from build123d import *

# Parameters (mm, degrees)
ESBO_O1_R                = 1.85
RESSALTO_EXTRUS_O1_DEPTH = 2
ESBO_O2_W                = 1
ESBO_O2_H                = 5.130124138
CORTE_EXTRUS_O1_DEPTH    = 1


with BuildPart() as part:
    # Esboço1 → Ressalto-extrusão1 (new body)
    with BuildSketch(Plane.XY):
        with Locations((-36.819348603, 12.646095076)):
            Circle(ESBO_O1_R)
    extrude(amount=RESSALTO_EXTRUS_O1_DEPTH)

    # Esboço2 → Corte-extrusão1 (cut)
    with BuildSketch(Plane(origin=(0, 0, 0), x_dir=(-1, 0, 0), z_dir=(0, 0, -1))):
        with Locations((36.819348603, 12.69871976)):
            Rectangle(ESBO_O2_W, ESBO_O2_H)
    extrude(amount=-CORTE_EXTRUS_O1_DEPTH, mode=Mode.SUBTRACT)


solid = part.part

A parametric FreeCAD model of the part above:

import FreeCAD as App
import Part
import Sketcher


def add_polygon(sketch, points):
    """Adds a closed chain of lines whose ends are joined by coincident constraints."""
    first, n = sketch.GeometryCount, len(points)
    for a, b in zip(points, points[1:] + points[:1]):
        sketch.addGeometry(Part.LineSegment(App.Vector(*a, 0), App.Vector(*b, 0)), False)
    for i in range(n):
        sketch.addConstraint(Sketcher.Constraint("Coincident", first + i, 2, first + (i + 1) % n, 1))

doc = App.newDocument("Part")
body = doc.addObject("PartDesign::Body", "Body")

# Sketch on XY plane
sketch1 = body.newObject("Sketcher::SketchObject", "Sketch")
sketch1.AttachmentSupport = (doc.getObject("XY_Plane"), [""])
sketch1.MapMode = "FlatFace"
sketch1.addGeometry(Part.Circle(App.Vector(-36.8, 12.6, 0), App.Vector(0, 0, 1), 1.9), False)
sketch1.addConstraint([
    Sketcher.Constraint("Diameter", 0, 3.7),
    Sketcher.Constraint("DistanceX", 0, 3, -1, 1, 36.819349),
    Sketcher.Constraint("DistanceY", -1, 1, 0, 3, 12.646095),
])
pad1 = body.newObject("PartDesign::Pad", "Pad")
pad1.Profile = sketch1
pad1.Length = 2

# Sketch on XY plane
sketch2 = body.newObject("Sketcher::SketchObject", "Sketch001")
sketch2.AttachmentSupport = (doc.getObject("XY_Plane"), [""])
sketch2.MapMode = "FlatFace"
add_polygon(sketch2, [(-36.3, 15.3), (-36.3, 10.1), (-37.3, 10.1), (-37.3, 15.3)])  # lines 0-3
sketch2.addConstraint([
    Sketcher.Constraint("Vertical", 0),
    Sketcher.Constraint("Horizontal", 1),
    Sketcher.Constraint("Vertical", 2),
    Sketcher.Constraint("Horizontal", 3),
    Sketcher.Constraint("DistanceX", 1, 2, 1, 1, 1.0),
    Sketcher.Constraint("DistanceY", 0, 2, 0, 1, 5.130124),
    Sketcher.Constraint("DistanceX", 0, 2, -1, 1, 36.319349),
    Sketcher.Constraint("DistanceY", -1, 1, 2, 2, 15.263782),
])
pocket1 = body.newObject("PartDesign::Pocket", "Pocket")
pocket1.Profile = sketch2
pocket1.Length = 1
pocket1.Reversed = True

doc.recompute()
